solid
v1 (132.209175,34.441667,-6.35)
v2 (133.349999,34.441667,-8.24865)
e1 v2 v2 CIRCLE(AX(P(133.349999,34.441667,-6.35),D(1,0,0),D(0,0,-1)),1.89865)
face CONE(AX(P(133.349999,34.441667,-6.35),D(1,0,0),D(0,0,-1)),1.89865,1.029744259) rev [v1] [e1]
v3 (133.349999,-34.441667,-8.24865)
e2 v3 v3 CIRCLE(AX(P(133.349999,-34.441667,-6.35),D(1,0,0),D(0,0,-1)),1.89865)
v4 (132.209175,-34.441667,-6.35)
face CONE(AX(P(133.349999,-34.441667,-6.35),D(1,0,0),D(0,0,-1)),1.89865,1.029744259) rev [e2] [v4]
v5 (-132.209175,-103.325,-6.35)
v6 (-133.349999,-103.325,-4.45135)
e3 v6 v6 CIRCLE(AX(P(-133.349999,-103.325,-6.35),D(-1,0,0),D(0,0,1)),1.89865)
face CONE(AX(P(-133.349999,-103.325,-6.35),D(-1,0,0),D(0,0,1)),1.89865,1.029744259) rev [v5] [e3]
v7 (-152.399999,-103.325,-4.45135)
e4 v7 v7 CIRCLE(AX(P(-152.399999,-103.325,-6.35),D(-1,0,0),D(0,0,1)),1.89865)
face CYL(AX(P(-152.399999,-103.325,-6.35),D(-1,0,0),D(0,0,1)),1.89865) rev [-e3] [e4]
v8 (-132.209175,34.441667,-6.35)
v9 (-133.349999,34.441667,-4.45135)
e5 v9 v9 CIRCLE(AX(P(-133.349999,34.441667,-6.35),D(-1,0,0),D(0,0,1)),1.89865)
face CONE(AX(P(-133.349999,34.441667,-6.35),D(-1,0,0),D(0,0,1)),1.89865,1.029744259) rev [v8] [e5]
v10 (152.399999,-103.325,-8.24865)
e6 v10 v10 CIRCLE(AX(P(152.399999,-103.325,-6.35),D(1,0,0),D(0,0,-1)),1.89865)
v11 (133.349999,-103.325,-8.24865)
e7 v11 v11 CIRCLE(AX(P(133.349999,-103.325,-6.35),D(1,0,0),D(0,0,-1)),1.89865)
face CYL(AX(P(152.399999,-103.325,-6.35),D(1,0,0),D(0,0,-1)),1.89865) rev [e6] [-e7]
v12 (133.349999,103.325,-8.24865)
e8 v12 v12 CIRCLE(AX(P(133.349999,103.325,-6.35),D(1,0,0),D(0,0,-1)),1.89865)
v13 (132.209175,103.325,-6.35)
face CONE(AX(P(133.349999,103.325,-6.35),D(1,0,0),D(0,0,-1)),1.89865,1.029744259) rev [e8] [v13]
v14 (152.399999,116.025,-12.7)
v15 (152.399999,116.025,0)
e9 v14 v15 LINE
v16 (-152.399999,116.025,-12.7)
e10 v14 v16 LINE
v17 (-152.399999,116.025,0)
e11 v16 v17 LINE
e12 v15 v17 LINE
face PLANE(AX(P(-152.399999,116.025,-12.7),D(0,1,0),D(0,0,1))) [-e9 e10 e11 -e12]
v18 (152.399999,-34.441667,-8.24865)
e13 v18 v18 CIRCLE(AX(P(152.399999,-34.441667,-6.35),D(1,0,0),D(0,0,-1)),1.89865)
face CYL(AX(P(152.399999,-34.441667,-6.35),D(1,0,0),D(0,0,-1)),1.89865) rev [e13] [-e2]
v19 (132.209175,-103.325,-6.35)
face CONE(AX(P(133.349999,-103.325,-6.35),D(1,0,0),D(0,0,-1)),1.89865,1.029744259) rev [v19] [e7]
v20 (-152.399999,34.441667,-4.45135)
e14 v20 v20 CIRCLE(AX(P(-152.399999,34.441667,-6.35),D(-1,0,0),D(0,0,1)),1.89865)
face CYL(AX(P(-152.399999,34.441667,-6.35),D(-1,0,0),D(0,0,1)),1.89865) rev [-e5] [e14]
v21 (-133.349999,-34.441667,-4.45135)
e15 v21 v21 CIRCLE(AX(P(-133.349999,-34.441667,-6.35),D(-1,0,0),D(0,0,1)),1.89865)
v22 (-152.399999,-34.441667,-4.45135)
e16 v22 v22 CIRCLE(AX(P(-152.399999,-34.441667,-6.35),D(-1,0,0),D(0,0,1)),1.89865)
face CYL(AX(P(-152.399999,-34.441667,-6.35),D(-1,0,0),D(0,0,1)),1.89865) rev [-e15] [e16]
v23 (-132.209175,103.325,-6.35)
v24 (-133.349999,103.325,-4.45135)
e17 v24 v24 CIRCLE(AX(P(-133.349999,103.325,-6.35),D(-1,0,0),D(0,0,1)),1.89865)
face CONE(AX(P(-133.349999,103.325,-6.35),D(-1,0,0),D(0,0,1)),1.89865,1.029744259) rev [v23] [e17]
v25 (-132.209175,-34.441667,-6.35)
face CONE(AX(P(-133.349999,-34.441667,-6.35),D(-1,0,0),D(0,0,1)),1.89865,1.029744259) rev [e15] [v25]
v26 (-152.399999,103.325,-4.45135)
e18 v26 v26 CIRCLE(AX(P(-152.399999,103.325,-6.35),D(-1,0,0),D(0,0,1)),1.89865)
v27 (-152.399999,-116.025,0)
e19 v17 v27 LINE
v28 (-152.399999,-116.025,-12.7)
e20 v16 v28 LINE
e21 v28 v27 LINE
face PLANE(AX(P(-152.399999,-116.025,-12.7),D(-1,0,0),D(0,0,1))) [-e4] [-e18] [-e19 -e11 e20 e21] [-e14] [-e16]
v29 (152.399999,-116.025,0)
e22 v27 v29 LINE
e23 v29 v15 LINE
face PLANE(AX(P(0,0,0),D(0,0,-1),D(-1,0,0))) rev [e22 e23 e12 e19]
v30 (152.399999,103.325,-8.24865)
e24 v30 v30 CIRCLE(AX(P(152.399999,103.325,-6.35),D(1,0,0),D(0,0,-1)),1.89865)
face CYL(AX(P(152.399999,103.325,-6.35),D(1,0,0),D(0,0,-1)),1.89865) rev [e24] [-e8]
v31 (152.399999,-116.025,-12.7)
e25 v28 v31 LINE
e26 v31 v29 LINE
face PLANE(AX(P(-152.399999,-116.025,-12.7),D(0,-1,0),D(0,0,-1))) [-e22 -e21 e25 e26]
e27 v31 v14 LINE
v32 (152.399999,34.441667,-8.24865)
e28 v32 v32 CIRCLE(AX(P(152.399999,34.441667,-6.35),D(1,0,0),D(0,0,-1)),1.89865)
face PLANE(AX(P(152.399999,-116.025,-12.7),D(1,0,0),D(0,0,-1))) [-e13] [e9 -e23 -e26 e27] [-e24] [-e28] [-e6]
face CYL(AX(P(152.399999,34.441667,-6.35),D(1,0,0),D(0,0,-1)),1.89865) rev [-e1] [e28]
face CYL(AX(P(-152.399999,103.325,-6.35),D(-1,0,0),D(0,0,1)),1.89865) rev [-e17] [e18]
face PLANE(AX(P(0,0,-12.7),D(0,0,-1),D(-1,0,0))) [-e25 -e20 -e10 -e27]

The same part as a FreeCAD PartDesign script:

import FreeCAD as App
import Part
import Sketcher
from FreeCAD import Vector
Q = App.Units.Quantity

doc = App.newDocument("Part")
body = doc.addObject("PartDesign::Body", "Body")

sketch1 = doc.addObject("Sketcher::SketchObject", "Sketch")
body.addObject(sketch1)
sketch1.AttachmentSupport = (doc.XY_Plane, [""])
sketch1.MapMode = "FlatFace"
sketch1.addGeometry(Part.LineSegment(Vector(-152.399999, 116.025, 0), Vector(-152.399999, -116.025, 0)), False)
sketch1.addGeometry(Part.LineSegment(Vector(-152.399999, -116.025, 0), Vector(152.399999, -116.025, 0)), False)
sketch1.addGeometry(Part.LineSegment(Vector(152.399999, -116.025, 0), Vector(152.399999, 116.025, 0)), False)
sketch1.addGeometry(Part.LineSegment(Vector(152.399999, 116.025, 0), Vector(-152.399999, 116.025, 0)), False)
sketch1.addConstraint(Sketcher.Constraint("Coincident", 0, 2, 1, 1))
sketch1.addConstraint(Sketcher.Constraint("Coincident", 1, 2, 2, 1))
sketch1.addConstraint(Sketcher.Constraint("Coincident", 2, 2, 3, 1))
sketch1.addConstraint(Sketcher.Constraint("Coincident", 3, 2, 0, 1))
sketch1.addConstraint(Sketcher.Constraint("Vertical", 0))
sketch1.addConstraint(Sketcher.Constraint("Horizontal", 1))
sketch1.addConstraint(Sketcher.Constraint("Vertical", 2))
sketch1.addConstraint(Sketcher.Constraint("Horizontal", 3))
sketch1.addConstraint(Sketcher.Constraint("Symmetric", 0, 2, 2, 2, -1, 1))
sketch1.addConstraint(Sketcher.Constraint("DistanceX", 1, 1, 1, 2, Q("11.9999999 in")))
sketch1.addConstraint(Sketcher.Constraint("DistanceY", 0, 2, 0, 1, 232.05))
pad1 = doc.addObject("PartDesign::Pad", "Pad")
body.addObject(pad1)
pad1.Profile = sketch1
pad1.Length = Q("0.5 in")
pad1.Reversed = True

sketch2 = doc.addObject("Sketcher::SketchObject", "Sketch001")
body.addObject(sketch2)
sketch2.AttachmentSupport = (doc.XZ_Plane, [""])
sketch2.MapMode = "FlatFace"
sketch2.AttachmentOffset = App.Placement(Vector(0, 0, -103.325), App.Rotation())
sketch2.addGeometry(Part.LineSegment(Vector(-132.209175, -6.35, 0), Vector(-152.399999, -6.35, 0)), False)
sketch2.addGeometry(Part.LineSegment(Vector(-152.399999, -6.35, 0), Vector(-152.399999, -4.45135, 0)), False)
sketch2.addGeometry(Part.LineSegment(Vector(-152.399999, -4.45135, 0), Vector(-133.349999, -4.45135, 0)), False)
sketch2.addGeometry(Part.LineSegment(Vector(-133.349999, -4.45135, 0), Vector(-132.209175, -6.35, 0)), False)
sketch2.addGeometry(Part.LineSegment(Vector(-152.399999, -6.35, 0), Vector(-132.209175, -6.35, 0)), True)
sketch2.addConstraint(Sketcher.Constraint("Coincident", 0, 2, 1, 1))
sketch2.addConstraint(Sketcher.Constraint("Coincident", 1, 2, 2, 1))
sketch2.addConstraint(Sketcher.Constraint("Coincident", 2, 2, 3, 1))
sketch2.addConstraint(Sketcher.Constraint("Coincident", 3, 2, 0, 1))
sketch2.addConstraint(Sketcher.Constraint("Horizontal", 0))
sketch2.addConstraint(Sketcher.Constraint("Vertical", 1))
sketch2.addConstraint(Sketcher.Constraint("Horizontal", 2))
sketch2.addConstraint(Sketcher.Constraint("Horizontal", 4))
sketch2.addConstraint(Sketcher.Constraint("Coincident", 4, 1, 0, 2))
sketch2.addConstraint(Sketcher.Constraint("Equal", 0, 4))
sketch2.addConstraint(Sketcher.Constraint("DistanceX", 0, 2, -1, 1, Q("6 in")))
sketch2.addConstraint(Sketcher.Constraint("Angle", 3, Q("-59 deg")))
sketch2.addConstraint(Sketcher.Constraint("DistanceX", 2, 1, 2, 2, Q("0.75 in")))
sketch2.addConstraint(Sketcher.Constraint("DistanceY", 0, 2, -1, 1, Q("0.25 in")))
sketch2.addConstraint(Sketcher.Constraint("DistanceY", 1, 1, 1, 2, 1.89865))
groove = doc.addObject("PartDesign::Groove", "Groove")
body.addObject(groove)
groove.Profile = sketch2
groove.ReferenceAxis = (sketch2, ["Axis0"])
groove.Angle = 360
doc.recompute()

linearpattern = doc.addObject("PartDesign::LinearPattern", "LinearPattern")
body.addObject(linearpattern)
linearpattern.Originals = [groove]
linearpattern.Direction = (doc.Y_Axis, [""])
linearpattern.Mode = "offset"
linearpattern.Offset = 68.883333
linearpattern.Occurrences = 2
linearpattern.Reversed = True
body.Tip = linearpattern
doc.recompute()

linearpattern2 = doc.addObject("PartDesign::LinearPattern", "LinearPattern001")
body.addObject(linearpattern2)
linearpattern2.Originals = [groove]
linearpattern2.Direction = (doc.Y_Axis, [""])
linearpattern2.Mode = "offset"
linearpattern2.Offset = 137.766667
linearpattern2.Occurrences = 2
linearpattern2.Reversed = True
body.Tip = linearpattern2
doc.recompute()

linearpattern3 = doc.addObject("PartDesign::LinearPattern", "LinearPattern002")
body.addObject(linearpattern3)
linearpattern3.Originals = [groove]
linearpattern3.Direction = (doc.Y_Axis, [""])
linearpattern3.Mode = "offset"
linearpattern3.Offset = 206.65
linearpattern3.Occurrences = 2
linearpattern3.Reversed = True
body.Tip = linearpattern3
doc.recompute()

mirrored = doc.addObject("PartDesign::Mirrored", "Mirrored")
body.addObject(mirrored)
mirrored.Originals = [groove]
mirrored.MirrorPlane = (doc.YZ_Plane, [""])
body.Tip = mirrored

sketch3 = doc.addObject("Sketcher::SketchObject", "Sketch002")
body.addObject(sketch3)
sketch3.AttachmentSupport = (doc.XZ_Plane, [""])
sketch3.MapMode = "FlatFace"
sketch3.AttachmentOffset = App.Placement(Vector(0, 0, -34.441667), App.Rotation())
sketch3.addGeometry(Part.LineSegment(Vector(152.399999, -6.35, 0), Vector(132.209175, -6.35, 0)), False)
sketch3.addGeometry(Part.LineSegment(Vector(132.209175, -6.35, 0), Vector(133.349999, -4.45135, 0)), False)
sketch3.addGeometry(Part.LineSegment(Vector(133.349999, -4.45135, 0), Vector(152.399999, -4.45135, 0)), False)
sketch3.addGeometry(Part.LineSegment(Vector(152.399999, -4.45135, 0), Vector(152.399999, -6.35, 0)), False)
sketch3.addGeometry(Part.LineSegment(Vector(132.209175, -6.35, 0), Vector(152.399999, -6.35, 0)), True)
sketch3.addConstraint(Sketcher.Constraint("Coincident", 0, 2, 1, 1))
sketch3.addConstraint(Sketcher.Constraint("Coincident", 1, 2, 2, 1))
sketch3.addConstraint(Sketcher.Constraint("Coincident", 2, 2, 3, 1))
sketch3.addConstraint(Sketcher.Constraint("Coincident", 3, 2, 0, 1))
sketch3.addConstraint(Sketcher.Constraint("Horizontal", 0))
sketch3.addConstraint(Sketcher.Constraint("Horizontal", 2))
sketch3.addConstraint(Sketcher.Constraint("Vertical", 3))
sketch3.addConstraint(Sketcher.Constraint("Horizontal", 4))
sketch3.addConstraint(Sketcher.Constraint("Coincident", 4, 1, 0, 2))
sketch3.addConstraint(Sketcher.Constraint("Vertical", 2, 2, 4, 2))
sketch3.addConstraint(Sketcher.Constraint("DistanceX", -1, 1, 2, 2, Q("6 in")))
sketch3.addConstraint(Sketcher.Constraint("Angle", 1, Q("59 deg")))
sketch3.addConstraint(Sketcher.Constraint("DistanceX", 2, 1, 2, 2, Q("0.75 in")))
sketch3.addConstraint(Sketcher.Constraint("DistanceY", 0, 2, -1, 1, Q("0.25 in")))
sketch3.addConstraint(Sketcher.Constraint("DistanceY", 3, 2, 3, 1, 1.89865))
groove2 = doc.addObject("PartDesign::Groove", "Groove001")
body.addObject(groove2)
groove2.Profile = sketch3
groove2.ReferenceAxis = (sketch3, ["Axis0"])
groove2.Angle = 360

sketch4 = doc.addObject("Sketcher::SketchObject", "Sketch003")
body.addObject(sketch4)
sketch4.AttachmentSupport = (doc.XZ_Plane, [""])
sketch4.MapMode = "FlatFace"
sketch4.AttachmentOffset = App.Placement(Vector(0, 0, 34.441667), App.Rotation())
sketch4.addGeometry(Part.LineSegment(Vector(152.399999, -6.35, 0), Vector(132.209175, -6.35, 0)), False)
sketch4.addGeometry(Part.LineSegment(Vector(132.209175, -6.35, 0), Vector(133.349999, -4.45135, 0)), False)
sketch4.addGeometry(Part.LineSegment(Vector(133.349999, -4.45135, 0), Vector(152.399999, -4.45135, 0)), False)
sketch4.addGeometry(Part.LineSegment(Vector(152.399999, -4.45135, 0), Vector(152.399999, -6.35, 0)), False)
sketch4.addGeometry(Part.LineSegment(Vector(132.209175, -6.35, 0), Vector(152.399999, -6.35, 0)), True)
sketch4.addConstraint(Sketcher.Constraint("Coincident", 0, 2, 1, 1))
sketch4.addConstraint(Sketcher.Constraint("Coincident", 1, 2, 2, 1))
sketch4.addConstraint(Sketcher.Constraint("Coincident", 2, 2, 3, 1))
sketch4.addConstraint(Sketcher.Constraint("Coincident", 3, 2, 0, 1))
sketch4.addConstraint(Sketcher.Constraint("Horizontal", 0))
sketch4.addConstraint(Sketcher.Constraint("Horizontal", 2))
sketch4.addConstraint(Sketcher.Constraint("Vertical", 3))
sketch4.addConstraint(Sketcher.Constraint("Horizontal", 4))
sketch4.addConstraint(Sketcher.Constraint("Coincident", 4, 1, 0, 2))
sketch4.addConstraint(Sketcher.Constraint("Vertical", 2, 2, 4, 2))
sketch4.addConstraint(Sketcher.Constraint("DistanceX", -1, 1, 2, 2, Q("6 in")))
sketch4.addConstraint(Sketcher.Constraint("Angle", 1, Q("59 deg")))
sketch4.addConstraint(Sketcher.Constraint("DistanceX", 2, 1, 2, 2, Q("0.75 in")))
sketch4.addConstraint(Sketcher.Constraint("DistanceY", 0, 2, -1, 1, Q("0.25 in")))
sketch4.addConstraint(Sketcher.Constraint("DistanceY", 3, 2, 3, 1, 1.89865))
groove3 = doc.addObject("PartDesign::Groove", "Groove002")
body.addObject(groove3)
groove3.Profile = sketch4
groove3.ReferenceAxis = (sketch4, ["Axis0"])
groove3.Angle = 360

sketch5 = doc.addObject("Sketcher::SketchObject", "Sketch004")
body.addObject(sketch5)
sketch5.AttachmentSupport = (doc.XZ_Plane, [""])
sketch5.MapMode = "FlatFace"
sketch5.AttachmentOffset = App.Placement(Vector(0, 0, 103.325), App.Rotation())
sketch5.addGeometry(Part.LineSegment(Vector(152.399999, -6.35, 0), Vector(132.209175, -6.35, 0)), False)
sketch5.addGeometry(Part.LineSegment(Vector(132.209175, -6.35, 0), Vector(133.349999, -4.45135, 0)), False)
sketch5.addGeometry(Part.LineSegment(Vector(133.349999, -4.45135, 0), Vector(152.399999, -4.45135, 0)), False)
sketch5.addGeometry(Part.LineSegment(Vector(152.399999, -4.45135, 0), Vector(152.399999, -6.35, 0)), False)
sketch5.addGeometry(Part.LineSegment(Vector(132.209175, -6.35, 0), Vector(152.399999, -6.35, 0)), True)
sketch5.addConstraint(Sketcher.Constraint("Coincident", 0, 2, 1, 1))
sketch5.addConstraint(Sketcher.Constraint("Coincident", 1, 2, 2, 1))
sketch5.addConstraint(Sketcher.Constraint("Coincident", 2, 2, 3, 1))
sketch5.addConstraint(Sketcher.Constraint("Coincident", 3, 2, 0, 1))
sketch5.addConstraint(Sketcher.Constraint("Horizontal", 0))
sketch5.addConstraint(Sketcher.Constraint("Horizontal", 2))
sketch5.addConstraint(Sketcher.Constraint("Vertical", 3))
sketch5.addConstraint(Sketcher.Constraint("Horizontal", 4))
sketch5.addConstraint(Sketcher.Constraint("Coincident", 4, 1, 0, 2))
sketch5.addConstraint(Sketcher.Constraint("Vertical", 2, 2, 4, 2))
sketch5.addConstraint(Sketcher.Constraint("DistanceX", -1, 1, 2, 2, Q("6 in")))
sketch5.addConstraint(Sketcher.Constraint("Angle", 1, Q("59 deg")))
sketch5.addConstraint(Sketcher.Constraint("DistanceX", 2, 1, 2, 2, Q("0.75 in")))
sketch5.addConstraint(Sketcher.Constraint("DistanceY", 0, 2, -1, 1, Q("0.25 in")))
sketch5.addConstraint(Sketcher.Constraint("DistanceY", 3, 2, 3, 1, 1.89865))
groove4 = doc.addObject("PartDesign::Groove", "Groove003")
body.addObject(groove4)
groove4.Profile = sketch5
groove4.ReferenceAxis = (sketch5, ["Axis0"])
groove4.Angle = 360

doc.recompute()
